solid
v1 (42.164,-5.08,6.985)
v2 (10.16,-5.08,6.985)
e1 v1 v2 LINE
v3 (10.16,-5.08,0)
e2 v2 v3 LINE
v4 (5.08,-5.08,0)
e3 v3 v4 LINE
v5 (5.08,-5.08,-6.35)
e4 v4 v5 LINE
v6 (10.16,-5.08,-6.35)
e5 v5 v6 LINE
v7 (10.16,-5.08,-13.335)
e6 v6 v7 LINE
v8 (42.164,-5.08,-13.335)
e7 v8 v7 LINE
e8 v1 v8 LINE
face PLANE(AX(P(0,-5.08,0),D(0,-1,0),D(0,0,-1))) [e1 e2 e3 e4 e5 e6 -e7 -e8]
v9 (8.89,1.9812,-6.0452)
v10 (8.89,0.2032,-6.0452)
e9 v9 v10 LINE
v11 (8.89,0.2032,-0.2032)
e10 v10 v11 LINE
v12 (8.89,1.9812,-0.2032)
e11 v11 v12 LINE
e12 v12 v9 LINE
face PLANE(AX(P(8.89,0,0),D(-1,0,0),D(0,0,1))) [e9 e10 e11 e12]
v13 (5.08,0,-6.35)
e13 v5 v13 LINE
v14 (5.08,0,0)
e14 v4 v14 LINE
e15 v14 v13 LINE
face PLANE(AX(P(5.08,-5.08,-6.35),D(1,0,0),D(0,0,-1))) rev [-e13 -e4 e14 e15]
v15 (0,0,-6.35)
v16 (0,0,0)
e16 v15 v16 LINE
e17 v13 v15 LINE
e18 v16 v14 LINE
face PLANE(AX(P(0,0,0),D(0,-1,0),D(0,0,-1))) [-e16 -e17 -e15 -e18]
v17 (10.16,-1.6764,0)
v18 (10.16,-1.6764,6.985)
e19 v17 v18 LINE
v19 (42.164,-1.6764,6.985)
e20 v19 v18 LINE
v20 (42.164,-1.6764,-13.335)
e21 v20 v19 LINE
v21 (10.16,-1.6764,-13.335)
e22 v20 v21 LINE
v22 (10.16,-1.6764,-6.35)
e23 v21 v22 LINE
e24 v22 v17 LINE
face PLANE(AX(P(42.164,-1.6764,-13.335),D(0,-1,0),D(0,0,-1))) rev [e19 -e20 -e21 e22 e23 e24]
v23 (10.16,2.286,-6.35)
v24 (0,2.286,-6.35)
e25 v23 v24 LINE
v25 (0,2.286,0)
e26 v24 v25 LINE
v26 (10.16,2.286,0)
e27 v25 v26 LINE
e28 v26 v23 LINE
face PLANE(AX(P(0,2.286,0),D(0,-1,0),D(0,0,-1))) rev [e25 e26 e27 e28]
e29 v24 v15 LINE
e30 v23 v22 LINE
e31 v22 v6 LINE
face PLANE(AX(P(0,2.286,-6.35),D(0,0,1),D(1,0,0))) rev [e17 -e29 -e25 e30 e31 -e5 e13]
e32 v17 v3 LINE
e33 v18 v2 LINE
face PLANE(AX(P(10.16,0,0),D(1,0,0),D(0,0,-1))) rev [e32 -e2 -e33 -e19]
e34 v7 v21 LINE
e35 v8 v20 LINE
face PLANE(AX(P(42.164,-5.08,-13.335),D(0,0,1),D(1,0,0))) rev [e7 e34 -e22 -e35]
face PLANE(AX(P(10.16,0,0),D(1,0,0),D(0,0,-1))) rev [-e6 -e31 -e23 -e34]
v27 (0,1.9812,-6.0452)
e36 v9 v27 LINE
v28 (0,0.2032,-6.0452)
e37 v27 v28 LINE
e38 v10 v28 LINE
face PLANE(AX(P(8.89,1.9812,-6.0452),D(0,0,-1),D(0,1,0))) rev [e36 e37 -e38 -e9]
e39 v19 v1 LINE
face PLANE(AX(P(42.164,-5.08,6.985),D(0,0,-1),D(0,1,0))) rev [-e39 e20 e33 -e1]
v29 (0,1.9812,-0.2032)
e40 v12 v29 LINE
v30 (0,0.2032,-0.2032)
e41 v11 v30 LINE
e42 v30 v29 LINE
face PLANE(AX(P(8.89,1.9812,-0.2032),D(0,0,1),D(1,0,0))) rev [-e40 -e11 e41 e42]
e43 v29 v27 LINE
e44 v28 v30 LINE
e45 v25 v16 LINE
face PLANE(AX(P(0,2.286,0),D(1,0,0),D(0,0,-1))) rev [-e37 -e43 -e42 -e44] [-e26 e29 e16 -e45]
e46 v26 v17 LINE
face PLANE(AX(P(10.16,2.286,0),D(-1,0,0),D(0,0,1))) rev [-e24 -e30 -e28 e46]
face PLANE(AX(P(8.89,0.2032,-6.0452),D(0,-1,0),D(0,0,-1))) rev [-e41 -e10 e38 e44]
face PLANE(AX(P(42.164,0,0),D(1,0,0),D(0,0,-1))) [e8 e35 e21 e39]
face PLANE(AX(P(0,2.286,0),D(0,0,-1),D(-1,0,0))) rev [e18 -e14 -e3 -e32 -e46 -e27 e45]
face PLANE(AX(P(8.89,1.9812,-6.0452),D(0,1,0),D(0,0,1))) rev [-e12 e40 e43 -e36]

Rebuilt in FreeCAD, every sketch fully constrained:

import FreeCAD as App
import Part
import Sketcher

V = App.Vector
Q = App.Units.Quantity

doc = App.newDocument("Part")
params = doc.addObject("Spreadsheet::Sheet", "Params")
for row, (alias, value) in enumerate([
    ("sketch1_width", "0.4 in"),
    ("sketch1_height", "0.25 in"),
    ("pad1_length", "0.09 in"),
    ("sketch2_width", "0.07 in"),
    ("sketch2_height", "0.23 in"),
    ("pocket1_length", "0.35 in"),
    ("sketch3_width", "0.2 in"),
    ("sketch3_height", "0.25 in"),
    ("pad2_length", "0.2 in"),
    ("sketch4_height", "0.8 in"),
    ("sketch4_width", "0.134 in"),
    ("pad3_length", "1.26 in"),
], start=1):
    params.set(f"A{row}", alias)
    params.set(f"B{row}", "=" + value)
    params.setAlias(f"B{row}", alias)

body = doc.addObject("PartDesign::Body", "Body")

sketch1 = doc.addObject("Sketcher::SketchObject", "Sketch")
body.addObject(sketch1)
sketch1.AttachmentSupport = (doc.XZ_Plane, [""])
sketch1.MapMode = "FlatFace"
sketch1.addGeometry([
    Part.LineSegment(V(0, -6, 0), V(0, 0, 0)),
    Part.LineSegment(V(0, 0, 0), V(10, 0, 0)),
    Part.LineSegment(V(10, 0, 0), V(10, -6, 0)),
    Part.LineSegment(V(10, -6, 0), V(0, -6, 0)),
], False)
sketch1.addConstraint([
    Sketcher.Constraint("Coincident", 0, 2, 1, 1),
    Sketcher.Constraint("Coincident", 1, 2, 2, 1),
    Sketcher.Constraint("Coincident", 2, 2, 3, 1),
    Sketcher.Constraint("Coincident", 3, 2, 0, 1),
    Sketcher.Constraint("Vertical", 0),
    Sketcher.Constraint("Horizontal", 1),
    Sketcher.Constraint("Vertical", 2),
    Sketcher.Constraint("Horizontal", 3),
    Sketcher.Constraint("Coincident", 0, 2, -1, 1),
    Sketcher.Constraint("DistanceX", 1, 1, 1, 2, Q("0.4 in")),
    Sketcher.Constraint("DistanceY", 0, 1, 0, 2, Q("0.25 in")),
])
sketch1.setExpression("Constraints[9]", "Params.sketch1_width")
sketch1.setExpression("Constraints[10]", "Params.sketch1_height")
pad1 = doc.addObject("PartDesign::Pad", "Pad")
body.addObject(pad1)
pad1.Profile = sketch1
pad1.setExpression("Length", "Params.pad1_length")
pad1.Reversed = True

sketch2 = doc.addObject("Sketcher::SketchObject", "Sketch001")
body.addObject(sketch2)
sketch2.AttachmentSupport = (doc.YZ_Plane, [""])
sketch2.MapMode = "FlatFace"
sketch2.addGeometry([
    Part.LineSegment(V(2, -6, 0), V(0.2, -6, 0)),
    Part.LineSegment(V(0.2, -6, 0), V(0.2, -0.2, 0)),
    Part.LineSegment(V(0.2, -0.2, 0), V(2, -0.2, 0)),
    Part.LineSegment(V(2, -0.2, 0), V(2, -6, 0)),
], False)
sketch2.addConstraint([
    Sketcher.Constraint("Coincident", 0, 2, 1, 1),
    Sketcher.Constraint("Coincident", 1, 2, 2, 1),
    Sketcher.Constraint("Coincident", 2, 2, 3, 1),
    Sketcher.Constraint("Coincident", 3, 2, 0, 1),
    Sketcher.Constraint("Horizontal", 0),
    Sketcher.Constraint("Vertical", 1),
    Sketcher.Constraint("Horizontal", 2),
    Sketcher.Constraint("Vertical", 3),
    Sketcher.Constraint("DistanceX", 0, 2, 0, 1, Q("0.07 in")),
    Sketcher.Constraint("DistanceY", 1, 1, 1, 2, Q("0.23 in")),
    Sketcher.Constraint("DistanceX", -1, 1, 0, 2, Q("0.008 in")),
    Sketcher.Constraint("DistanceY", 0, 2, -1, 1, Q("0.238 in")),
])
sketch2.setExpression("Constraints[8]", "Params.sketch2_width")
sketch2.setExpression("Constraints[9]", "Params.sketch2_height")
pocket1 = doc.addObject("PartDesign::Pocket", "Pocket")
body.addObject(pocket1)
pocket1.Profile = sketch2
pocket1.setExpression("Length", "Params.pocket1_length")
pocket1.Reversed = True

sketch3 = doc.addObject("Sketcher::SketchObject", "Sketch002")
body.addObject(sketch3)
sketch3.AttachmentSupport = (doc.XZ_Plane, [""])
sketch3.MapMode = "FlatFace"
sketch3.addGeometry([
    Part.LineSegment(V(5, 0, 0), V(5, -6, 0)),
    Part.LineSegment(V(5, -6, 0), V(10, -6, 0)),
    Part.LineSegment(V(10, -6, 0), V(10, 0, 0)),
    Part.LineSegment(V(10, 0, 0), V(5, 0, 0)),
], False)
sketch3.addConstraint([
    Sketcher.Constraint("Coincident", 0, 2, 1, 1),
    Sketcher.Constraint("Coincident", 1, 2, 2, 1),
    Sketcher.Constraint("Coincident", 2, 2, 3, 1),
    Sketcher.Constraint("Coincident", 3, 2, 0, 1),
    Sketcher.Constraint("Vertical", 0),
    Sketcher.Constraint("Horizontal", 1),
    Sketcher.Constraint("Vertical", 2),
    Sketcher.Constraint("Horizontal", 3),
    Sketcher.Constraint("PointOnObject", 2, 2, -1),
    Sketcher.Constraint("DistanceX", 1, 1, 1, 2, Q("0.2 in")),
    Sketcher.Constraint("DistanceY", 0, 2, 0, 1, Q("0.25 in")),
    Sketcher.Constraint("DistanceX", -1, 1, 0, 2, Q("0.2 in")),
])
sketch3.setExpression("Constraints[9]", "Params.sketch3_width")
sketch3.setExpression("Constraints[10]", "Params.sketch3_height")
pad2 = doc.addObject("PartDesign::Pad", "Pad001")
body.addObject(pad2)
pad2.Profile = sketch3
pad2.setExpression("Length", "Params.pad2_length")

sketch4 = doc.addObject("Sketcher::SketchObject", "Sketch003")
body.addObject(sketch4)
sketch4.AttachmentSupport = (doc.YZ_Plane, [""])
sketch4.MapMode = "FlatFace"
sketch4.AttachmentOffset = App.Placement(V(0, 0, 0.4 * 25.4), App.Rotation())
sketch4.addGeometry([
    Part.LineSegment(V(-1.7, 7, 0), V(-5.1, 7, 0)),
    Part.LineSegment(V(-5.1, 7, 0), V(-5.1, -13.3, 0)),
    Part.LineSegment(V(-5.1, -13.3, 0), V(-1.7, -13.3, 0)),
    Part.LineSegment(V(-1.7, -13.3, 0), V(-1.7, 7, 0)),
], False)
sketch4.addConstraint([
    Sketcher.Constraint("Coincident", 0, 2, 1, 1),
    Sketcher.Constraint("Coincident", 1, 2, 2, 1),
    Sketcher.Constraint("Coincident", 2, 2, 3, 1),
    Sketcher.Constraint("Coincident", 3, 2, 0, 1),
    Sketcher.Constraint("Horizontal", 0),
    Sketcher.Constraint("Vertical", 1),
    Sketcher.Constraint("Horizontal", 2),
    Sketcher.Constraint("Vertical", 3),
    Sketcher.Constraint("DistanceY", 1, 2, 1, 1, Q("0.8 in")),
    Sketcher.Constraint("DistanceX", 0, 2, -1, 1, Q("0.2 in")),
    Sketcher.Constraint("DistanceX", 0, 2, 0, 1, Q("0.134 in")),
    Sketcher.Constraint("DistanceY", -1, 1, 0, 2, Q("0.275 in")),
])
sketch4.setExpression("Constraints[8]", "Params.sketch4_height")
sketch4.setExpression("Constraints[10]", "Params.sketch4_width")
pad3 = doc.addObject("PartDesign::Pad", "Pad002")
body.addObject(pad3)
pad3.Profile = sketch4
pad3.setExpression("Length", "Params.pad3_length")

doc.recompute()
